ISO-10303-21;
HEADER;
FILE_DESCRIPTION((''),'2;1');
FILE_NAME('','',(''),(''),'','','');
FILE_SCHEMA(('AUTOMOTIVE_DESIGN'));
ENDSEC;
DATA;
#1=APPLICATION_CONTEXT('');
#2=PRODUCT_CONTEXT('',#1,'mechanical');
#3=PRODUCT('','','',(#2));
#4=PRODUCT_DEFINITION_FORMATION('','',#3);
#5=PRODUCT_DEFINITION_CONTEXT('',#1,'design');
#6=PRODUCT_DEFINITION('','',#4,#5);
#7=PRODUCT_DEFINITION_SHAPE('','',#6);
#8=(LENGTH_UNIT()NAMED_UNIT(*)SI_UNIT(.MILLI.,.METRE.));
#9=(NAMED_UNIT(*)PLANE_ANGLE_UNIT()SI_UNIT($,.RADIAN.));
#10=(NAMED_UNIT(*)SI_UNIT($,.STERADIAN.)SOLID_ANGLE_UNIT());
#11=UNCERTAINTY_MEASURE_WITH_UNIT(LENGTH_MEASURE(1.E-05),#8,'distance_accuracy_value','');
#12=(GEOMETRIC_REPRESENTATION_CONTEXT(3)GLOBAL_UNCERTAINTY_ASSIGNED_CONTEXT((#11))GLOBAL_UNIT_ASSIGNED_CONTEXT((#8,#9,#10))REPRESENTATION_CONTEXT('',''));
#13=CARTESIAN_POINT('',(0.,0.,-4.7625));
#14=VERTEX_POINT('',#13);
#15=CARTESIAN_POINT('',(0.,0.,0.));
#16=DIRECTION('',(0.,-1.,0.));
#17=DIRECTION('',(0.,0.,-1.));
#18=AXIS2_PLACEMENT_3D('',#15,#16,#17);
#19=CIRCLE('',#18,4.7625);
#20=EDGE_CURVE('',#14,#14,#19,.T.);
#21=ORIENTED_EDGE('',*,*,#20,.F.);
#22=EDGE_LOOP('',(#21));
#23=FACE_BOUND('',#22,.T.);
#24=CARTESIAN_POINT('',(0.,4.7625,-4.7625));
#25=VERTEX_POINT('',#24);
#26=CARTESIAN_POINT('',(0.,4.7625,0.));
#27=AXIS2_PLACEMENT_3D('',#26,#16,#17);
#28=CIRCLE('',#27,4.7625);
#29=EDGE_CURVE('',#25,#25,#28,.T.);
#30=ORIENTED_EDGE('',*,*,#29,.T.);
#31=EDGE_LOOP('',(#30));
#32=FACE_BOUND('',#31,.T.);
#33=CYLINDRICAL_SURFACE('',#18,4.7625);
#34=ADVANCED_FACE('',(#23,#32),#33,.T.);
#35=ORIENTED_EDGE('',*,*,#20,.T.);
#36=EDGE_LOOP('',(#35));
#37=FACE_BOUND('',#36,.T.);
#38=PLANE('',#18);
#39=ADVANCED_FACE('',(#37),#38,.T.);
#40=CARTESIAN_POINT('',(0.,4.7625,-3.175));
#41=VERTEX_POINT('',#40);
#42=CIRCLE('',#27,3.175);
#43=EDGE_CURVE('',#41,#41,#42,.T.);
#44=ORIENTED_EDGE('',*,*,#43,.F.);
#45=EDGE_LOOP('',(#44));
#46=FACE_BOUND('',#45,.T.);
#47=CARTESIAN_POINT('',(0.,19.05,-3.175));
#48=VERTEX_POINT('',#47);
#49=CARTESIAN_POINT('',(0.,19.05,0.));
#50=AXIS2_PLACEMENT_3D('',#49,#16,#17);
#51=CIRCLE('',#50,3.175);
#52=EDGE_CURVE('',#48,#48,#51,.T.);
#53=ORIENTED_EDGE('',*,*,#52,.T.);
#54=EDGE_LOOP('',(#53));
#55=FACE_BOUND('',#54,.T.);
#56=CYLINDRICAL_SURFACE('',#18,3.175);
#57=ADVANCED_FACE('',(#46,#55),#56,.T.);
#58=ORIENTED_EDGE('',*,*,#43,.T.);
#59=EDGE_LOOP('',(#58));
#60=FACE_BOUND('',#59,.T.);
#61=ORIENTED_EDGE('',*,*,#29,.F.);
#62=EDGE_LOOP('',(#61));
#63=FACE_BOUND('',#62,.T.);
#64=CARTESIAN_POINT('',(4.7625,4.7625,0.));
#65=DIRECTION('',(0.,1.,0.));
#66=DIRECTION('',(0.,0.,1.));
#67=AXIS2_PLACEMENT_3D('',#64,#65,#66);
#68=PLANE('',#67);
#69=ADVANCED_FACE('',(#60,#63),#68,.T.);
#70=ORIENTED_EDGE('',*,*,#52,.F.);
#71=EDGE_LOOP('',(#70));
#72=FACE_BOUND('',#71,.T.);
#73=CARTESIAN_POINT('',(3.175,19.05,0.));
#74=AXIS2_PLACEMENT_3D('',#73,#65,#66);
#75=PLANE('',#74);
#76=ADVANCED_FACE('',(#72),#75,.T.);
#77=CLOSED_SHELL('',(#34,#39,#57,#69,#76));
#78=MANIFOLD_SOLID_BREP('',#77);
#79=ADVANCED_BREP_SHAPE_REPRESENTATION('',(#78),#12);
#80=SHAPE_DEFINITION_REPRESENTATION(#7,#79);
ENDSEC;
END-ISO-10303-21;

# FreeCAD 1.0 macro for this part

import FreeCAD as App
import Part
import Sketcher

V = App.Vector
Q = App.Units.Quantity


def add_polygon(sketch, points):
    """Adds a closed chain of lines whose ends are joined by coincident constraints."""
    first, n = sketch.GeometryCount, len(points)
    for a, b in zip(points, points[1:] + points[:1]):
        sketch.addGeometry(Part.LineSegment(App.Vector(*a, 0), App.Vector(*b, 0)), False)
    for i in range(n):
        sketch.addConstraint(Sketcher.Constraint("Coincident", first + i, 2, first + (i + 1) % n, 1))

doc = App.newDocument("Part")
body = doc.addObject("PartDesign::Body", "Body")

# Sketch on XY plane
sketch1 = body.newObject("Sketcher::SketchObject", "Sketch")
sketch1.AttachmentSupport = (doc.getObject("XY_Plane"), [""])
sketch1.MapMode = "FlatFace"
add_polygon(sketch1, [(0, 0), (4.7625, 0), (4.7625, 4.7625), (3.175, 4.7625), (3.175, 19.05), (0, 19.05)])  # lines 0-5
sketch1.addConstraint([
    Sketcher.Constraint("Horizontal", 0),
    Sketcher.Constraint("Vertical", 1),
    Sketcher.Constraint("Horizontal", 2),
    Sketcher.Constraint("Vertical", 3),
    Sketcher.Constraint("Horizontal", 4),
    Sketcher.Constraint("Vertical", 5),
    Sketcher.Constraint("Coincident", 5, 2, -1, 1),
    Sketcher.Constraint("Equal", 0, 1),
    Sketcher.Constraint("DistanceY", 5, 2, 5, 1, Q("0.75 in")),
    Sketcher.Constraint("DistanceX", 0, 1, 0, 2, Q("0.1875 in")),
    Sketcher.Constraint("DistanceX", 2, 2, 2, 1, Q("0.0625 in")),
])
revolution = body.newObject("PartDesign::Revolution", "Revolution")
revolution.Profile = sketch1
revolution.ReferenceAxis = (sketch1, ["V_Axis"])
revolution.Angle = 360

doc.recompute()
